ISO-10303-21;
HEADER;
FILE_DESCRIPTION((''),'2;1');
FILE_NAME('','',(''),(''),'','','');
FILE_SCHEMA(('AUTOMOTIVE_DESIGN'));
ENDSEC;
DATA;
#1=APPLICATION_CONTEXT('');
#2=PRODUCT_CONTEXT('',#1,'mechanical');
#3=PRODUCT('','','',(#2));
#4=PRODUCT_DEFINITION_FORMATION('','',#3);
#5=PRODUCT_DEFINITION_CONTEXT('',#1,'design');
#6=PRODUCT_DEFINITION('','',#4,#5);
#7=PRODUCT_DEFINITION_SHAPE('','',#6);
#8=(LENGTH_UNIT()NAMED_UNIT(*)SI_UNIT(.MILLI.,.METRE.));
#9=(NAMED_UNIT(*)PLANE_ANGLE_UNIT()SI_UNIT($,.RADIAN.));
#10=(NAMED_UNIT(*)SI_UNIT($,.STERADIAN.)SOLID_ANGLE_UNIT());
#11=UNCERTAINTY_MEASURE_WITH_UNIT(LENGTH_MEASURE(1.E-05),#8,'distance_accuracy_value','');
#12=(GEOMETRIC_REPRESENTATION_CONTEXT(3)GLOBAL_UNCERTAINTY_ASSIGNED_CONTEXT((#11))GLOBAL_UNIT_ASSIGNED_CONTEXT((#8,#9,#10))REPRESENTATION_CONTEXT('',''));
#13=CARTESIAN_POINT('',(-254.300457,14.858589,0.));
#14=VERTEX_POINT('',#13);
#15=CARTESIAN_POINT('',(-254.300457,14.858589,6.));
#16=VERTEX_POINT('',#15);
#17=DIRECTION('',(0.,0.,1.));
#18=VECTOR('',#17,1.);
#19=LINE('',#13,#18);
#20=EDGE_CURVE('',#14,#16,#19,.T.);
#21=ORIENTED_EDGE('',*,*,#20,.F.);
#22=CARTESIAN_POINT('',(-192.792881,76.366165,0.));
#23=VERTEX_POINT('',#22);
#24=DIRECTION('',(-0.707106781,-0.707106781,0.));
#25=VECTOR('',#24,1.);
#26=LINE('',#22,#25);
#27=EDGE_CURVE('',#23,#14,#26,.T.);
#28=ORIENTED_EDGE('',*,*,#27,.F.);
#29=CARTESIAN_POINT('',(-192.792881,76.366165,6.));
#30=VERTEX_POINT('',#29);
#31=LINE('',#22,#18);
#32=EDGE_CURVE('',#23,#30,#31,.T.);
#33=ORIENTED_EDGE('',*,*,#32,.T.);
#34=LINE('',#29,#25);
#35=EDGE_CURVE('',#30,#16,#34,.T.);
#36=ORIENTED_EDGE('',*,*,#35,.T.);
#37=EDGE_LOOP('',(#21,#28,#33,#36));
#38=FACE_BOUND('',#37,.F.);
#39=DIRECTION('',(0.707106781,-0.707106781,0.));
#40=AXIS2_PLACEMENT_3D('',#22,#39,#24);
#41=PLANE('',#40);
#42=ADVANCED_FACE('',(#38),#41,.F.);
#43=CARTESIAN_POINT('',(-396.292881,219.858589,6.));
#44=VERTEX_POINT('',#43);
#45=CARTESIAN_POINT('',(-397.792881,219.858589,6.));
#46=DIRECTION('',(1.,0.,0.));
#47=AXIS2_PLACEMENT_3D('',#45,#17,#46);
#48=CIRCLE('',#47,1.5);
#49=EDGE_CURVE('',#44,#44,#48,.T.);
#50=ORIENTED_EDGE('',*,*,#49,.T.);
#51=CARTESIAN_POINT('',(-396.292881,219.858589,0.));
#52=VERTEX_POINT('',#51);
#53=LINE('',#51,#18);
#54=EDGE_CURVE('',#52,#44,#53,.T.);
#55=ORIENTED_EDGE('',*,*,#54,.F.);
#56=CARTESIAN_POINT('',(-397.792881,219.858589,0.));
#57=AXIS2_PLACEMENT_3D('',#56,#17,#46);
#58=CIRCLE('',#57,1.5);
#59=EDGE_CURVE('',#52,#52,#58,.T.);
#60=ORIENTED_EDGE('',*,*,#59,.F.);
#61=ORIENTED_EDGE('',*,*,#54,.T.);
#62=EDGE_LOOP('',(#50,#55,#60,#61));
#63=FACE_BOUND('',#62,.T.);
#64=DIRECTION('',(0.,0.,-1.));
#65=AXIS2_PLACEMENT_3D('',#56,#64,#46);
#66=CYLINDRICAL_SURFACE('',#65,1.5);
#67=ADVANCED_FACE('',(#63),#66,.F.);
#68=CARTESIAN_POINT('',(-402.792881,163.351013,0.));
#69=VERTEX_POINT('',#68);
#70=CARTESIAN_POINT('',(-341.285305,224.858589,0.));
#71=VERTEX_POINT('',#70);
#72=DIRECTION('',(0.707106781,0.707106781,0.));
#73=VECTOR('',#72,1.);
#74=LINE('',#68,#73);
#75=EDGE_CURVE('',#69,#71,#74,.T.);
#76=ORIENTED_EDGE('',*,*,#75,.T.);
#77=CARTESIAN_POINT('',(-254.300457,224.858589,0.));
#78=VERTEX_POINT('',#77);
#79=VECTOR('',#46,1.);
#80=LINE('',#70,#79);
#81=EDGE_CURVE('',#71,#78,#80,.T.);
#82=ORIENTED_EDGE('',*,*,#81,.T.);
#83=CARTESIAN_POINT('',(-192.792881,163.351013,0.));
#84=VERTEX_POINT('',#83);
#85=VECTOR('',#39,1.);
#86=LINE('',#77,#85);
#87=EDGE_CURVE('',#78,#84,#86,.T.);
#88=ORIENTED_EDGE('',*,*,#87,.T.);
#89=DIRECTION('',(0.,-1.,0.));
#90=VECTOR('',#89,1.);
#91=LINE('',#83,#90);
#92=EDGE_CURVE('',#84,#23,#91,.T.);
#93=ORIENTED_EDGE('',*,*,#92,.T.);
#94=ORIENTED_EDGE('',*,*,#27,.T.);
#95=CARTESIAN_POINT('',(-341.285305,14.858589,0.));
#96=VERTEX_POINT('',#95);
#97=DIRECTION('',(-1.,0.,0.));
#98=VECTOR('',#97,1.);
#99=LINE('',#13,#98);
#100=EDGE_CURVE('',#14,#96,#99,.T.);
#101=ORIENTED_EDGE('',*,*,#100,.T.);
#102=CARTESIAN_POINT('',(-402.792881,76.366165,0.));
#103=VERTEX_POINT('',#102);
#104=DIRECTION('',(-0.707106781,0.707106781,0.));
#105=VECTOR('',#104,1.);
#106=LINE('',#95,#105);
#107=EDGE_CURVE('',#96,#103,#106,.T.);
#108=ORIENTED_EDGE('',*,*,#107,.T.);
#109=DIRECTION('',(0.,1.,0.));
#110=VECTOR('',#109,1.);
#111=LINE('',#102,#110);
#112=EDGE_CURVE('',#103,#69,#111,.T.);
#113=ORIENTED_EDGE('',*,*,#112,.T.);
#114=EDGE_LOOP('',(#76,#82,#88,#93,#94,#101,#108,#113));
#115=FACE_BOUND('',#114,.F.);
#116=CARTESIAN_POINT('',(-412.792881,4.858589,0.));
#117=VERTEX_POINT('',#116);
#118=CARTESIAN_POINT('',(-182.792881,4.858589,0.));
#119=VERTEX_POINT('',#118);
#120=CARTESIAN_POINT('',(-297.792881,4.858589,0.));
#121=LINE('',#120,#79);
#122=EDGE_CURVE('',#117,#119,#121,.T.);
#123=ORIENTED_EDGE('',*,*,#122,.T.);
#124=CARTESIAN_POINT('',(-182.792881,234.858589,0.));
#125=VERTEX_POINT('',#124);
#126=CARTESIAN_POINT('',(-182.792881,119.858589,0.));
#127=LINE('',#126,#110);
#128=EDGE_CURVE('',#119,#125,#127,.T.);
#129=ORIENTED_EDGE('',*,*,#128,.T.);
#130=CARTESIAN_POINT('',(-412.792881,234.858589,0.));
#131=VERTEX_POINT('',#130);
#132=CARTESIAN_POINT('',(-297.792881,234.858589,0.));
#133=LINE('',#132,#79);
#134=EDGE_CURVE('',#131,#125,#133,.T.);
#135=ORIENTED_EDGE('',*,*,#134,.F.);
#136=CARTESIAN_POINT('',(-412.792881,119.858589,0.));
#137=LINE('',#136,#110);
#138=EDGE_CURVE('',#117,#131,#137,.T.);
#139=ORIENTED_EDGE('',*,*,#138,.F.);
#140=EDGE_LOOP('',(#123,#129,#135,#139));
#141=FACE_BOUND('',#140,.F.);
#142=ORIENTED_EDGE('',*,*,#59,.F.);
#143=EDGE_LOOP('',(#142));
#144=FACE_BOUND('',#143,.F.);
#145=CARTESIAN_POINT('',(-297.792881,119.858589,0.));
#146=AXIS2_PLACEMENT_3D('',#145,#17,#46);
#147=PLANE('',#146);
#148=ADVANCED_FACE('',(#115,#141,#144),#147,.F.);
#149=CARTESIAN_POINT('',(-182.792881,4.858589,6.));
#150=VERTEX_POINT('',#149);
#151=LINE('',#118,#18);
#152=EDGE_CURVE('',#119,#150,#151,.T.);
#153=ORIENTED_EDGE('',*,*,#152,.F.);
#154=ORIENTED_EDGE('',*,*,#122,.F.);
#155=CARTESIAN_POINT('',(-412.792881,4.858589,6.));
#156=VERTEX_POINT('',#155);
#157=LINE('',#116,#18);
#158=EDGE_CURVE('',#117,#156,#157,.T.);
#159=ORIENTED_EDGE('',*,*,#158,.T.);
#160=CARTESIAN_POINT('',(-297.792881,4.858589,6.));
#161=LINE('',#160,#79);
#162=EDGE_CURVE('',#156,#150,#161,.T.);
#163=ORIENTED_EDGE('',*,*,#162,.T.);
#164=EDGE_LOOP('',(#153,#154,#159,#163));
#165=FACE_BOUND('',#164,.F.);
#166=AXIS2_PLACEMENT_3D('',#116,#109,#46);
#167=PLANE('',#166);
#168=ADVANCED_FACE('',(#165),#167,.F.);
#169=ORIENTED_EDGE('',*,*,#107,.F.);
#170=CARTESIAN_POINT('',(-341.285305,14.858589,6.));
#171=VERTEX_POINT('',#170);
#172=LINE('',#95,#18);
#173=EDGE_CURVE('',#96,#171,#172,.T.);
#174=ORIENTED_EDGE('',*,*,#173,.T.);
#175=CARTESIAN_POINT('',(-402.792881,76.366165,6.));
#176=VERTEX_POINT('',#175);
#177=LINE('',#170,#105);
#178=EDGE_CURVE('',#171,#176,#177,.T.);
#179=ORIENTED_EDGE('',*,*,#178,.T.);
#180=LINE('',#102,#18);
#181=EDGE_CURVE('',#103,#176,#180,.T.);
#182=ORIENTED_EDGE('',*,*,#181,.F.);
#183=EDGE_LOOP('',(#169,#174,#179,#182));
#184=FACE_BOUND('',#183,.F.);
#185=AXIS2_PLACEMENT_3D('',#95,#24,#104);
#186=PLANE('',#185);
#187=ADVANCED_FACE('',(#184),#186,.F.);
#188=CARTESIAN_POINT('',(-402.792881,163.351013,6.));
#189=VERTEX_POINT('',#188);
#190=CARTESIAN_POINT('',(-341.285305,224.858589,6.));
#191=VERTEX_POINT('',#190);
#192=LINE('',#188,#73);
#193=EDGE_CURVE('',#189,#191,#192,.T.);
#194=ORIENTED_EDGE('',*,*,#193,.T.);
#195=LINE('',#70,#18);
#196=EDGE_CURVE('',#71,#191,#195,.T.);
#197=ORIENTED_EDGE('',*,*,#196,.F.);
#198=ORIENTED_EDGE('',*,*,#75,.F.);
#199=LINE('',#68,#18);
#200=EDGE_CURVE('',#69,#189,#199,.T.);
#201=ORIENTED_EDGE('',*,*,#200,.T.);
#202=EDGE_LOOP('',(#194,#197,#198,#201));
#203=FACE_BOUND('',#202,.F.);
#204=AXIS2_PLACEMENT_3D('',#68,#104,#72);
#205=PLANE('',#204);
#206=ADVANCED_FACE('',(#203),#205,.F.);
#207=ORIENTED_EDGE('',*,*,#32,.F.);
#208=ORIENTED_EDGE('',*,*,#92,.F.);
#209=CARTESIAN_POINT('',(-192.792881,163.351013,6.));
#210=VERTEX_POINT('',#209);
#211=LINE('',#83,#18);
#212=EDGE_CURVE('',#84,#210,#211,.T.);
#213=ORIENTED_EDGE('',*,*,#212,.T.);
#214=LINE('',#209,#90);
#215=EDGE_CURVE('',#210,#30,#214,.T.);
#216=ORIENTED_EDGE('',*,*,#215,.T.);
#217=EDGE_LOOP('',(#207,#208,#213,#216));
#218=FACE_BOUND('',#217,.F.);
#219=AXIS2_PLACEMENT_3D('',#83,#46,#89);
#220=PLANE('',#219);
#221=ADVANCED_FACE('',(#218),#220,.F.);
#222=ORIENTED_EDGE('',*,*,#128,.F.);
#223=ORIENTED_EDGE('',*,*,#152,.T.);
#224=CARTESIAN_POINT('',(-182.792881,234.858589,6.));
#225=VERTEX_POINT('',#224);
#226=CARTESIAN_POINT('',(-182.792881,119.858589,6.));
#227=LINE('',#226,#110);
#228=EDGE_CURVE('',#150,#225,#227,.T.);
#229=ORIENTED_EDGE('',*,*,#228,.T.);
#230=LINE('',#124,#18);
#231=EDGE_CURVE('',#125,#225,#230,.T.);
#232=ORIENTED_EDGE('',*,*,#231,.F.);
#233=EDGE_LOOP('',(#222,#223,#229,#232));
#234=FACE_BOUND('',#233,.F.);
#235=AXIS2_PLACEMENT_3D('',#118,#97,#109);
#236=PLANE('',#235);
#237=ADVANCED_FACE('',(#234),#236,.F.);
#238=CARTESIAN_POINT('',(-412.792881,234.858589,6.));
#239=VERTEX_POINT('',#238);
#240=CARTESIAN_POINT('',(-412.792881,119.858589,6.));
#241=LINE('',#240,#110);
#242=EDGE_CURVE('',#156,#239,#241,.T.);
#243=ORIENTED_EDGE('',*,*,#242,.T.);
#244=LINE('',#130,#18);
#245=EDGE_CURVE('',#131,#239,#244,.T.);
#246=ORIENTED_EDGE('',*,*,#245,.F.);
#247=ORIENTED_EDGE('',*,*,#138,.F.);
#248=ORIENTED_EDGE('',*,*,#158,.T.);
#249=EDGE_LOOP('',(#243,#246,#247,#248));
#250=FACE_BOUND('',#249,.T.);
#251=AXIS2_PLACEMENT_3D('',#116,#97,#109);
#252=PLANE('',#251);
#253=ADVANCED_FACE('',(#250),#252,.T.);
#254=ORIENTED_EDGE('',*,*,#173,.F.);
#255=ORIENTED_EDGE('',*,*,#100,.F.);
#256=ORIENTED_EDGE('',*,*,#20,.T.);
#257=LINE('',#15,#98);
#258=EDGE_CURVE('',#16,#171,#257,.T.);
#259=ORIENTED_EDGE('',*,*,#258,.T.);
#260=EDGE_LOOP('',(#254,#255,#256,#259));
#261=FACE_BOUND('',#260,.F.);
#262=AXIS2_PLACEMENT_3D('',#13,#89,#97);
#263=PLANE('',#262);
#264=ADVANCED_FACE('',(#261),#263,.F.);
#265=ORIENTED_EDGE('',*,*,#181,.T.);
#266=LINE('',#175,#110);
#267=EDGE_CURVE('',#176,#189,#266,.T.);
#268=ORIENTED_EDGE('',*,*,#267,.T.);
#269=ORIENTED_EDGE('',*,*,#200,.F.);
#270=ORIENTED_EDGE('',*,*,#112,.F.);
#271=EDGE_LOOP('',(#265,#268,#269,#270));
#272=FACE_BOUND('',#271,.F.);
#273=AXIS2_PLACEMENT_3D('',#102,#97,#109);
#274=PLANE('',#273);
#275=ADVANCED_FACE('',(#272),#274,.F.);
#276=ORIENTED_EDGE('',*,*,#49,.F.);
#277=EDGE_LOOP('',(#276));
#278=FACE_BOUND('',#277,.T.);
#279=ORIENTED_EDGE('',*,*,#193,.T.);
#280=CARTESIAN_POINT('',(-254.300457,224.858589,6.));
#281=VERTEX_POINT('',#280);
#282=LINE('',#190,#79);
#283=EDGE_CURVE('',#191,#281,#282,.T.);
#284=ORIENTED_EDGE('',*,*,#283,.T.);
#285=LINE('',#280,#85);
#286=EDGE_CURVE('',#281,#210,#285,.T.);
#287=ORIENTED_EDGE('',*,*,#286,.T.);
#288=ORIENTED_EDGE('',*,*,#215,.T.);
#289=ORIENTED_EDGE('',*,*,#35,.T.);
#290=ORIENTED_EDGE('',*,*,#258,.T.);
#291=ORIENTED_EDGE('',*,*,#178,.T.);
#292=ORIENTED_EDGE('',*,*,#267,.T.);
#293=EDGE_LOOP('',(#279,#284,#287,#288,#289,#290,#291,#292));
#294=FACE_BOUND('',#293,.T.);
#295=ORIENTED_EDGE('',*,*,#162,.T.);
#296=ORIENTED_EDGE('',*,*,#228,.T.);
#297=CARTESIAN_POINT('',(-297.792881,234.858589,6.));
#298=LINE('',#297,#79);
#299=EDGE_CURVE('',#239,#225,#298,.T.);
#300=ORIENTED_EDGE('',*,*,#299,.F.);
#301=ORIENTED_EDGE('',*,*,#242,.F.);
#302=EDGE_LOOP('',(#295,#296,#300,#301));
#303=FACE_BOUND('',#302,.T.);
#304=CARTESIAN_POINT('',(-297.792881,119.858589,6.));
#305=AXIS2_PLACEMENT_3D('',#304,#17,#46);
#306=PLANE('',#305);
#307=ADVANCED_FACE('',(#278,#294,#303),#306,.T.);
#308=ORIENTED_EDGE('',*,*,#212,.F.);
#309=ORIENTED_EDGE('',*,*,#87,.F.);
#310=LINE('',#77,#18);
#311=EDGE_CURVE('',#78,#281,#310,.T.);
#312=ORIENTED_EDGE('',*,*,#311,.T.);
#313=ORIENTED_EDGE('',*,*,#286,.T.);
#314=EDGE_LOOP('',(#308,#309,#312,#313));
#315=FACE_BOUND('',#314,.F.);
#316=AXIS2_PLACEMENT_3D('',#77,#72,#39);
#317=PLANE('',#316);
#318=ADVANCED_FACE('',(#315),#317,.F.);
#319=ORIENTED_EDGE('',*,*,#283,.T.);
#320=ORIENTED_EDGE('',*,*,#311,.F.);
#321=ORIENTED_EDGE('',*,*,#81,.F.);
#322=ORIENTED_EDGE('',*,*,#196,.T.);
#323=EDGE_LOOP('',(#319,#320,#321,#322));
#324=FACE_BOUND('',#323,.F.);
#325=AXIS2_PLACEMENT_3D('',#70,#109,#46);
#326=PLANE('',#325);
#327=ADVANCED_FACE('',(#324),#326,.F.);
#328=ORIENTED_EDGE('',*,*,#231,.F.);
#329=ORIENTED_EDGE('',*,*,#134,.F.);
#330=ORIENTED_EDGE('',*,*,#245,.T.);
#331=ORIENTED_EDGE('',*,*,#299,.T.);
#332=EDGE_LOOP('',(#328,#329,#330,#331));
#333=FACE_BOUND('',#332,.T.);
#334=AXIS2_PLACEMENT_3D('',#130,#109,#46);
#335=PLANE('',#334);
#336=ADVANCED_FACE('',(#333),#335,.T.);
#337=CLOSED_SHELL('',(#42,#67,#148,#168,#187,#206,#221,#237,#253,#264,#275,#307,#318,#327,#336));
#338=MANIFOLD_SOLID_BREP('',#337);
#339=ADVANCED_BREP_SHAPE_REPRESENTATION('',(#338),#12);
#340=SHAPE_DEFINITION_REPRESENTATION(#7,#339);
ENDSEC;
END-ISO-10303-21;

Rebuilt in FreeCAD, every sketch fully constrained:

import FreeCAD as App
import Part
import Sketcher


def add_polygon(sketch, points):
    """Adds a closed chain of lines whose ends are joined by coincident constraints."""
    first, n = sketch.GeometryCount, len(points)
    for a, b in zip(points, points[1:] + points[:1]):
        sketch.addGeometry(Part.LineSegment(App.Vector(*a, 0), App.Vector(*b, 0)), False)
    for i in range(n):
        sketch.addConstraint(Sketcher.Constraint("Coincident", first + i, 2, first + (i + 1) % n, 1))

doc = App.newDocument("Part")
body = doc.addObject("PartDesign::Body", "Body")

# Sketch on XY plane
sketch1 = doc.addObject("Sketcher::SketchObject", "Sketch")
body.addObject(sketch1)
sketch1.AttachmentSupport = (doc.XY_Plane, [""])
sketch1.MapMode = "FlatFace"
add_polygon(sketch1, [(-412.792881, 234.858589), (-412.792881, 4.858589), (-182.792881, 4.858589), (-182.792881, 234.858589)])  # lines 0-3
sketch1.addGeometry(Part.Circle(App.Vector(-397.792881, 219.858589, 0), App.Vector(0, 0, 1), 1.5), False)  # 4
add_polygon(sketch1, [(-402.792881, 76.366165), (-402.792881, 163.351013), (-341.285305, 224.858589), (-254.300457, 224.858589), (-192.792881, 163.351013), (-192.792881, 76.366165), (-254.300457, 14.858589), (-341.285305, 14.858589)])  # lines 5-12
sketch1.addConstraint(Sketcher.Constraint("Vertical", 0))
sketch1.addConstraint(Sketcher.Constraint("Horizontal", 1))
sketch1.addConstraint(Sketcher.Constraint("Vertical", 2))
sketch1.addConstraint(Sketcher.Constraint("Horizontal", 3))
sketch1.addConstraint(Sketcher.Constraint("Vertical", 5))
sketch1.addConstraint(Sketcher.Constraint("Horizontal", 7))
sketch1.addConstraint(Sketcher.Constraint("Vertical", 9))
sketch1.addConstraint(Sketcher.Constraint("Horizontal", 11))
sketch1.addConstraint(Sketcher.Constraint("Perpendicular", 6, 8))
sketch1.addConstraint(Sketcher.Constraint("Perpendicular", 8, 10))
sketch1.addConstraint(Sketcher.Constraint("Perpendicular", 10, 12))
sketch1.addConstraint(Sketcher.Constraint("Horizontal", 5, 2, 8, 2))
sketch1.addConstraint(Sketcher.Constraint("Horizontal", 9, 2, 12, 2))
sketch1.addConstraint(Sketcher.Constraint("Vertical", 7, 2, 10, 2))
sketch1.addConstraint(Sketcher.Constraint("Vertical", 6, 2, 11, 2))
sketch1.addConstraint(Sketcher.Constraint("Equal", 3, 0))
sketch1.addConstraint(Sketcher.Constraint("Equal", 11, 5))
sketch1.addConstraint(Sketcher.Constraint("Diameter", 4, 3.0))
sketch1.addConstraint(Sketcher.Constraint("DistanceX", 1, 1, 1, 2, 230.0))
sketch1.addConstraint(Sketcher.Constraint("DistanceX", 0, 2, 4, 3, 15.0))
sketch1.addConstraint(Sketcher.Constraint("DistanceY", 0, 2, 4, 3, 215.0))
sketch1.addConstraint(Sketcher.Constraint("DistanceX", 5, 2, 4, 3, 5.0))
sketch1.addConstraint(Sketcher.Constraint("DistanceY", 4, 3, 6, 2, 5.0))
sketch1.addConstraint(Sketcher.Constraint("DistanceX", 8, 2, 2, 2, 10.0))
sketch1.addConstraint(Sketcher.Constraint("DistanceX", 7, 1, 7, 2, 86.984848))
sketch1.addConstraint(Sketcher.Constraint("DistanceX", 4, 3, -1, 1, 397.792881))
sketch1.addConstraint(Sketcher.Constraint("DistanceY", -1, 1, 4, 3, 219.858589))
pad1 = doc.addObject("PartDesign::Pad", "Pad")
body.addObject(pad1)
pad1.Profile = sketch1
pad1.Length = 6

doc.recompute()
